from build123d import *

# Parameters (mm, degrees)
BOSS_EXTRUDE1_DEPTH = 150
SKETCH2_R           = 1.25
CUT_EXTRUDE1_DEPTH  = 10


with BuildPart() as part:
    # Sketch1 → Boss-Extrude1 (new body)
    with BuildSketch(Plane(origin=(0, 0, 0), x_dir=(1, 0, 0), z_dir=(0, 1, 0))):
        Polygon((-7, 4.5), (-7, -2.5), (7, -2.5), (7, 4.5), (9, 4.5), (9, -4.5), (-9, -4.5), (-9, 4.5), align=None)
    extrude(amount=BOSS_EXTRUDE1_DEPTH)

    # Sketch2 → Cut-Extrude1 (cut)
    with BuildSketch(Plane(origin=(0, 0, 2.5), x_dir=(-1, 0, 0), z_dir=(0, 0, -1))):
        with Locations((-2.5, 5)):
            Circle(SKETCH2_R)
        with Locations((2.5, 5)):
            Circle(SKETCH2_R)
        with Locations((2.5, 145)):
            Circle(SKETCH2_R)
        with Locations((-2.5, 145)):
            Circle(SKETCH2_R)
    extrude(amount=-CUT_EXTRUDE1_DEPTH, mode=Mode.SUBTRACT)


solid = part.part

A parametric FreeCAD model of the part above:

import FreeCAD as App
import Part
import Sketcher

V = App.Vector
Q = App.Units.Quantity

doc = App.newDocument("Part")
body = doc.addObject("PartDesign::Body", "Body")

# Sketch on XZ plane
sketch1 = body.newObject("Sketcher::SketchObject", "Sketch")
sketch1.AttachmentSupport = (doc.getObject("XZ_Plane"), [""])
sketch1.MapMode = "FlatFace"
sketch1.addGeometry(Part.LineSegment(V(-7, 2.5, 0), V(-7, -4.5, 0)), False)
sketch1.addGeometry(Part.LineSegment(V(-7, -4.5, 0), V(-9, -4.5, 0)), False)
sketch1.addGeometry(Part.LineSegment(V(-9, -4.5, 0), V(-9, 4.5, 0)), False)
sketch1.addGeometry(Part.LineSegment(V(-9, 4.5, 0), V(9, 4.5, 0)), False)
sketch1.addGeometry(Part.LineSegment(V(9, 4.5, 0), V(9, -4.5, 0)), False)
sketch1.addGeometry(Part.LineSegment(V(9, -4.5, 0), V(7, -4.5, 0)), False)
sketch1.addGeometry(Part.LineSegment(V(7, -4.5, 0), V(7, 2.5, 0)), False)
sketch1.addGeometry(Part.LineSegment(V(7, 2.5, 0), V(-7, 2.5, 0)), False)
sketch1.addConstraint(Sketcher.Constraint("Coincident", 0, 2, 1, 1))
sketch1.addConstraint(Sketcher.Constraint("Coincident", 1, 2, 2, 1))
sketch1.addConstraint(Sketcher.Constraint("Coincident", 2, 2, 3, 1))
sketch1.addConstraint(Sketcher.Constraint("Coincident", 3, 2, 4, 1))
sketch1.addConstraint(Sketcher.Constraint("Coincident", 4, 2, 5, 1))
sketch1.addConstraint(Sketcher.Constraint("Coincident", 5, 2, 6, 1))
sketch1.addConstraint(Sketcher.Constraint("Coincident", 6, 2, 7, 1))
sketch1.addConstraint(Sketcher.Constraint("Coincident", 7, 2, 0, 1))
sketch1.addConstraint(Sketcher.Constraint("Vertical", 0))
sketch1.addConstraint(Sketcher.Constraint("Horizontal", 1))
sketch1.addConstraint(Sketcher.Constraint("Vertical", 2))
sketch1.addConstraint(Sketcher.Constraint("Horizontal", 3))
sketch1.addConstraint(Sketcher.Constraint("Vertical", 4))
sketch1.addConstraint(Sketcher.Constraint("Horizontal", 5))
sketch1.addConstraint(Sketcher.Constraint("Vertical", 6))
sketch1.addConstraint(Sketcher.Constraint("Horizontal", 7))
sketch1.addConstraint(Sketcher.Constraint("Symmetric", 1, 2, 3, 2, -1, 1))
sketch1.addConstraint(Sketcher.Constraint("Symmetric", 0, 2, 5, 2, -2))
sketch1.addConstraint(Sketcher.Constraint("DistanceX", 1, 2, 1, 1, Q("2 mm")))
sketch1.addConstraint(Sketcher.Constraint("DistanceX", 3, 1, 3, 2, Q("18 mm")))
sketch1.addConstraint(Sketcher.Constraint("DistanceY", 0, 2, 0, 1, Q("7 mm")))
sketch1.addConstraint(Sketcher.Constraint("DistanceY", 2, 1, 2, 2, Q("9 mm")))
pad1 = body.newObject("PartDesign::Pad", "Pad")
pad1.Profile = sketch1
pad1.Length = 150
pad1.Reversed = True

# Sketch on XY plane
sketch2 = body.newObject("Sketcher::SketchObject", "Sketch001")
sketch2.AttachmentSupport = (doc.getObject("XY_Plane"), [""])
sketch2.MapMode = "FlatFace"
sketch2.AttachmentOffset = App.Placement(V(0, 0, 2.5), App.Rotation())
sketch2.addGeometry(Part.Circle(V(2.5, 5, 0), V(0, 0, 1), 1.2), False)
sketch2.addGeometry(Part.Circle(V(-2.5, 5, 0), V(0, 0, 1), 1.2), False)
sketch2.addGeometry(Part.Circle(V(-2.5, 145, 0), V(0, 0, 1), 1.2), False)
sketch2.addGeometry(Part.Circle(V(2.5, 145, 0), V(0, 0, 1), 1.2), False)
sketch2.addConstraint(Sketcher.Constraint("Equal", 0, 1))
sketch2.addConstraint(Sketcher.Constraint("Equal", 1, 2))
sketch2.addConstraint(Sketcher.Constraint("Equal", 2, 3))
sketch2.addConstraint(Sketcher.Constraint("Symmetric", 0, 3, 1, 3, -2))
sketch2.addConstraint(Sketcher.Constraint("Symmetric", 2, 3, 3, 3, -2))
sketch2.addConstraint(Sketcher.Constraint("Vertical", 1, 3, 2, 3))
sketch2.addConstraint(Sketcher.Constraint("Diameter", 0, Q("2.5 mm")))
sketch2.addConstraint(Sketcher.Constraint("DistanceY", -1, 1, 0, 3, Q("5 mm")))
sketch2.addConstraint(Sketcher.Constraint("DistanceY", -1, 1, 2, 3, Q("145 mm")))
sketch2.addConstraint(Sketcher.Constraint("DistanceX", 1, 3, 0, 3, Q("5 mm")))
pocket1 = body.newObject("PartDesign::Pocket", "Pocket")
pocket1.Profile = sketch2
pocket1.Length = 10
pocket1.Reversed = True

doc.recompute()
